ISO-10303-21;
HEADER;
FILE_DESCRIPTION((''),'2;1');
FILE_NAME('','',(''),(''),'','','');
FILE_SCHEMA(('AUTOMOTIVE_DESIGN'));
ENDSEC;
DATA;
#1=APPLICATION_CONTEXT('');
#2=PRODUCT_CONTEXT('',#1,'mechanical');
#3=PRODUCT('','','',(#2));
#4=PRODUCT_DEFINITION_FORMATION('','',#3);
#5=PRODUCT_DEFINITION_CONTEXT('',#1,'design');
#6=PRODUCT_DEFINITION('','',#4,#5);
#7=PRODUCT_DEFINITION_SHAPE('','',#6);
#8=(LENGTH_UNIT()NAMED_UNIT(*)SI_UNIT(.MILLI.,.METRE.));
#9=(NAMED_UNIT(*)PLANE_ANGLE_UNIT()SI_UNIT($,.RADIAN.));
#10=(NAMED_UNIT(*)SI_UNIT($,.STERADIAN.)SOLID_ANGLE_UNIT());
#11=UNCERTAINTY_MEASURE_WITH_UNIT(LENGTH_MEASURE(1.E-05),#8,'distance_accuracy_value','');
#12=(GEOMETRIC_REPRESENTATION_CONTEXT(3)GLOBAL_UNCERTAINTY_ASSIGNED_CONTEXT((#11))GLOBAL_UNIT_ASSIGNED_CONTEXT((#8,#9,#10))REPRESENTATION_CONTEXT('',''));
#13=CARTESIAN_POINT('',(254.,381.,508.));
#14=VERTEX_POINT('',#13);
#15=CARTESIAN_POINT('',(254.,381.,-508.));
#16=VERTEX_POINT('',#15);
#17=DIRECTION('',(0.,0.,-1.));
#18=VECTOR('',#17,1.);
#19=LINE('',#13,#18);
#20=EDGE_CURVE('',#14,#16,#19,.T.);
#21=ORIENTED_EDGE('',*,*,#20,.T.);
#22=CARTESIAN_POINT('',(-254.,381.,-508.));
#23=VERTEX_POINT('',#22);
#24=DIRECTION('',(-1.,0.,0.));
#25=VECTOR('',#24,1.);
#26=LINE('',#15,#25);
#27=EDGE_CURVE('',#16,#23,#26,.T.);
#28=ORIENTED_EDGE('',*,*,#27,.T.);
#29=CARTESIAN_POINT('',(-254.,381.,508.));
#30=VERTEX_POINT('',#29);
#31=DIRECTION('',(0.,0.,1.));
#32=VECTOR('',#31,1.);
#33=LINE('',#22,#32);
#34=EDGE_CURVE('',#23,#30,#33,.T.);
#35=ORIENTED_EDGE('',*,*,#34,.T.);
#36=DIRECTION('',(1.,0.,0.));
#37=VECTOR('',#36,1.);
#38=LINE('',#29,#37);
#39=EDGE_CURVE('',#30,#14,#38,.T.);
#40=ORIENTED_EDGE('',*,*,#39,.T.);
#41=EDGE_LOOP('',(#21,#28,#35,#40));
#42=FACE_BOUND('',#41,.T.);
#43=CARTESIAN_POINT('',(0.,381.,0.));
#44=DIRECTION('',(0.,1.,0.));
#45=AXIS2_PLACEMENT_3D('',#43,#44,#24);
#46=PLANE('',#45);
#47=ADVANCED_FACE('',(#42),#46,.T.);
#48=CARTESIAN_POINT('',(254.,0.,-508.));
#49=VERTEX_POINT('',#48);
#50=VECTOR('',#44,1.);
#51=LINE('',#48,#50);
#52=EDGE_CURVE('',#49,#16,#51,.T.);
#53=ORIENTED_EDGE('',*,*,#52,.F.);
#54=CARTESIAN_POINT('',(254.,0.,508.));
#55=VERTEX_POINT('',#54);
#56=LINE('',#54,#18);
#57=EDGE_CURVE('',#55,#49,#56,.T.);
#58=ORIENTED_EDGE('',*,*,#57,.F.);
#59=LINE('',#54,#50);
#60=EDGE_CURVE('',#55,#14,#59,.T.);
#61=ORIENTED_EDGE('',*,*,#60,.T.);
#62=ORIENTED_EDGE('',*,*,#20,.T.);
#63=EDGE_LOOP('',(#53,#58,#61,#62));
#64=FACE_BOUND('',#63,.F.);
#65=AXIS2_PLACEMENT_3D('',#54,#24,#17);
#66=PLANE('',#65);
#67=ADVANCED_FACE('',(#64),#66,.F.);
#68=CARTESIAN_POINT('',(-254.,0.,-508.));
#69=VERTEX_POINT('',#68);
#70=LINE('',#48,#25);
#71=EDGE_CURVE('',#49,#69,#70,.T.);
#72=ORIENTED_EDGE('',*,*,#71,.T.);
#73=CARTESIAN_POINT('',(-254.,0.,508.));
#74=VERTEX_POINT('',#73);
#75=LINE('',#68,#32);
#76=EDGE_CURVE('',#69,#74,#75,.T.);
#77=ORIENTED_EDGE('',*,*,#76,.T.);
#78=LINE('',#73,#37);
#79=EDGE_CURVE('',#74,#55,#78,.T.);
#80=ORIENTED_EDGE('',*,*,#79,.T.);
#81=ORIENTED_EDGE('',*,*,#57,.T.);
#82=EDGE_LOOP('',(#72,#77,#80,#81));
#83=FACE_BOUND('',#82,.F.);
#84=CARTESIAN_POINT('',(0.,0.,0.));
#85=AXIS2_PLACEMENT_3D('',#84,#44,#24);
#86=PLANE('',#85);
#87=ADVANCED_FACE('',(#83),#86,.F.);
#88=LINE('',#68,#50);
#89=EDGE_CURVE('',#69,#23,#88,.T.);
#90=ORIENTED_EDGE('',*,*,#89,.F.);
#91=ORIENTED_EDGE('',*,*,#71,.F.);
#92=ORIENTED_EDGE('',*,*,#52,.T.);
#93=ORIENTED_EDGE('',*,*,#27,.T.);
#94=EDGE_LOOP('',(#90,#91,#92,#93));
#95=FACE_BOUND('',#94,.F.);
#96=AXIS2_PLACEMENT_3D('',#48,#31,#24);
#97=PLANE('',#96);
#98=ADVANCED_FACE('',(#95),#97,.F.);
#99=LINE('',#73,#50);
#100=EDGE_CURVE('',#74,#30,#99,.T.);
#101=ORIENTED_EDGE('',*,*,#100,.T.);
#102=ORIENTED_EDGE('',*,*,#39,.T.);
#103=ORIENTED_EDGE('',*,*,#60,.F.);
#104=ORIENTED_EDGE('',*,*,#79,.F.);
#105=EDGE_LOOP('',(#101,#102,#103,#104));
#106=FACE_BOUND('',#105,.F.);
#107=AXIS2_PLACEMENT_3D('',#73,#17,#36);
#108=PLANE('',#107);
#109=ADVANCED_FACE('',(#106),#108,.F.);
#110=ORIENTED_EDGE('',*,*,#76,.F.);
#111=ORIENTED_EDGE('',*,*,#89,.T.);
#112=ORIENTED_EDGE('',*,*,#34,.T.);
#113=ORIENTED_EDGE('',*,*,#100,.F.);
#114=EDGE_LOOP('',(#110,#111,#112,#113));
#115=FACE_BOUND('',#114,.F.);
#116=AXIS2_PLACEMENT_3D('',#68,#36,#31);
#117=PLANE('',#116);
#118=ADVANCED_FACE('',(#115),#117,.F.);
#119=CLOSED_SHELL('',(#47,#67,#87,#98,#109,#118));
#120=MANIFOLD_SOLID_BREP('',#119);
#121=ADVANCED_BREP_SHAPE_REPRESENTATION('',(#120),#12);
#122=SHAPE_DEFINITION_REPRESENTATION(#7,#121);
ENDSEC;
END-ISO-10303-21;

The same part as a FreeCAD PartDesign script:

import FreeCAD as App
import Part
import Sketcher
from FreeCAD import Vector
Q = App.Units.Quantity

doc = App.newDocument("Part")
body = doc.addObject("PartDesign::Body", "Body")

# Sketch on XZ plane
sketch1 = body.newObject("Sketcher::SketchObject", "Sketch")
sketch1.AttachmentSupport = (doc.getObject("XZ_Plane"), [""])
sketch1.MapMode = "FlatFace"
sketch1.addGeometry([
    Part.LineSegment(Vector(-254, -508, 0), Vector(-254, 508, 0)),
    Part.LineSegment(Vector(-254, 508, 0), Vector(254, 508, 0)),
    Part.LineSegment(Vector(254, 508, 0), Vector(254, -508, 0)),
    Part.LineSegment(Vector(254, -508, 0), Vector(-254, -508, 0)),
], False)
sketch1.addConstraint([
    Sketcher.Constraint("Coincident", 0, 2, 1, 1),
    Sketcher.Constraint("Coincident", 1, 2, 2, 1),
    Sketcher.Constraint("Coincident", 2, 2, 3, 1),
    Sketcher.Constraint("Coincident", 3, 2, 0, 1),
    Sketcher.Constraint("Vertical", 0),
    Sketcher.Constraint("Horizontal", 1),
    Sketcher.Constraint("Vertical", 2),
    Sketcher.Constraint("Horizontal", 3),
    Sketcher.Constraint("Symmetric", 0, 2, 2, 2, -1, 1),
    Sketcher.Constraint("DistanceX", 1, 1, 1, 2, Q("20 in")),
    Sketcher.Constraint("DistanceY", 0, 1, 0, 2, Q("40 in")),
])
pad1 = body.newObject("PartDesign::Pad", "Pad")
pad1.Profile = sketch1
pad1.Length = Q("15 in")
pad1.Reversed = True

doc.recompute()
